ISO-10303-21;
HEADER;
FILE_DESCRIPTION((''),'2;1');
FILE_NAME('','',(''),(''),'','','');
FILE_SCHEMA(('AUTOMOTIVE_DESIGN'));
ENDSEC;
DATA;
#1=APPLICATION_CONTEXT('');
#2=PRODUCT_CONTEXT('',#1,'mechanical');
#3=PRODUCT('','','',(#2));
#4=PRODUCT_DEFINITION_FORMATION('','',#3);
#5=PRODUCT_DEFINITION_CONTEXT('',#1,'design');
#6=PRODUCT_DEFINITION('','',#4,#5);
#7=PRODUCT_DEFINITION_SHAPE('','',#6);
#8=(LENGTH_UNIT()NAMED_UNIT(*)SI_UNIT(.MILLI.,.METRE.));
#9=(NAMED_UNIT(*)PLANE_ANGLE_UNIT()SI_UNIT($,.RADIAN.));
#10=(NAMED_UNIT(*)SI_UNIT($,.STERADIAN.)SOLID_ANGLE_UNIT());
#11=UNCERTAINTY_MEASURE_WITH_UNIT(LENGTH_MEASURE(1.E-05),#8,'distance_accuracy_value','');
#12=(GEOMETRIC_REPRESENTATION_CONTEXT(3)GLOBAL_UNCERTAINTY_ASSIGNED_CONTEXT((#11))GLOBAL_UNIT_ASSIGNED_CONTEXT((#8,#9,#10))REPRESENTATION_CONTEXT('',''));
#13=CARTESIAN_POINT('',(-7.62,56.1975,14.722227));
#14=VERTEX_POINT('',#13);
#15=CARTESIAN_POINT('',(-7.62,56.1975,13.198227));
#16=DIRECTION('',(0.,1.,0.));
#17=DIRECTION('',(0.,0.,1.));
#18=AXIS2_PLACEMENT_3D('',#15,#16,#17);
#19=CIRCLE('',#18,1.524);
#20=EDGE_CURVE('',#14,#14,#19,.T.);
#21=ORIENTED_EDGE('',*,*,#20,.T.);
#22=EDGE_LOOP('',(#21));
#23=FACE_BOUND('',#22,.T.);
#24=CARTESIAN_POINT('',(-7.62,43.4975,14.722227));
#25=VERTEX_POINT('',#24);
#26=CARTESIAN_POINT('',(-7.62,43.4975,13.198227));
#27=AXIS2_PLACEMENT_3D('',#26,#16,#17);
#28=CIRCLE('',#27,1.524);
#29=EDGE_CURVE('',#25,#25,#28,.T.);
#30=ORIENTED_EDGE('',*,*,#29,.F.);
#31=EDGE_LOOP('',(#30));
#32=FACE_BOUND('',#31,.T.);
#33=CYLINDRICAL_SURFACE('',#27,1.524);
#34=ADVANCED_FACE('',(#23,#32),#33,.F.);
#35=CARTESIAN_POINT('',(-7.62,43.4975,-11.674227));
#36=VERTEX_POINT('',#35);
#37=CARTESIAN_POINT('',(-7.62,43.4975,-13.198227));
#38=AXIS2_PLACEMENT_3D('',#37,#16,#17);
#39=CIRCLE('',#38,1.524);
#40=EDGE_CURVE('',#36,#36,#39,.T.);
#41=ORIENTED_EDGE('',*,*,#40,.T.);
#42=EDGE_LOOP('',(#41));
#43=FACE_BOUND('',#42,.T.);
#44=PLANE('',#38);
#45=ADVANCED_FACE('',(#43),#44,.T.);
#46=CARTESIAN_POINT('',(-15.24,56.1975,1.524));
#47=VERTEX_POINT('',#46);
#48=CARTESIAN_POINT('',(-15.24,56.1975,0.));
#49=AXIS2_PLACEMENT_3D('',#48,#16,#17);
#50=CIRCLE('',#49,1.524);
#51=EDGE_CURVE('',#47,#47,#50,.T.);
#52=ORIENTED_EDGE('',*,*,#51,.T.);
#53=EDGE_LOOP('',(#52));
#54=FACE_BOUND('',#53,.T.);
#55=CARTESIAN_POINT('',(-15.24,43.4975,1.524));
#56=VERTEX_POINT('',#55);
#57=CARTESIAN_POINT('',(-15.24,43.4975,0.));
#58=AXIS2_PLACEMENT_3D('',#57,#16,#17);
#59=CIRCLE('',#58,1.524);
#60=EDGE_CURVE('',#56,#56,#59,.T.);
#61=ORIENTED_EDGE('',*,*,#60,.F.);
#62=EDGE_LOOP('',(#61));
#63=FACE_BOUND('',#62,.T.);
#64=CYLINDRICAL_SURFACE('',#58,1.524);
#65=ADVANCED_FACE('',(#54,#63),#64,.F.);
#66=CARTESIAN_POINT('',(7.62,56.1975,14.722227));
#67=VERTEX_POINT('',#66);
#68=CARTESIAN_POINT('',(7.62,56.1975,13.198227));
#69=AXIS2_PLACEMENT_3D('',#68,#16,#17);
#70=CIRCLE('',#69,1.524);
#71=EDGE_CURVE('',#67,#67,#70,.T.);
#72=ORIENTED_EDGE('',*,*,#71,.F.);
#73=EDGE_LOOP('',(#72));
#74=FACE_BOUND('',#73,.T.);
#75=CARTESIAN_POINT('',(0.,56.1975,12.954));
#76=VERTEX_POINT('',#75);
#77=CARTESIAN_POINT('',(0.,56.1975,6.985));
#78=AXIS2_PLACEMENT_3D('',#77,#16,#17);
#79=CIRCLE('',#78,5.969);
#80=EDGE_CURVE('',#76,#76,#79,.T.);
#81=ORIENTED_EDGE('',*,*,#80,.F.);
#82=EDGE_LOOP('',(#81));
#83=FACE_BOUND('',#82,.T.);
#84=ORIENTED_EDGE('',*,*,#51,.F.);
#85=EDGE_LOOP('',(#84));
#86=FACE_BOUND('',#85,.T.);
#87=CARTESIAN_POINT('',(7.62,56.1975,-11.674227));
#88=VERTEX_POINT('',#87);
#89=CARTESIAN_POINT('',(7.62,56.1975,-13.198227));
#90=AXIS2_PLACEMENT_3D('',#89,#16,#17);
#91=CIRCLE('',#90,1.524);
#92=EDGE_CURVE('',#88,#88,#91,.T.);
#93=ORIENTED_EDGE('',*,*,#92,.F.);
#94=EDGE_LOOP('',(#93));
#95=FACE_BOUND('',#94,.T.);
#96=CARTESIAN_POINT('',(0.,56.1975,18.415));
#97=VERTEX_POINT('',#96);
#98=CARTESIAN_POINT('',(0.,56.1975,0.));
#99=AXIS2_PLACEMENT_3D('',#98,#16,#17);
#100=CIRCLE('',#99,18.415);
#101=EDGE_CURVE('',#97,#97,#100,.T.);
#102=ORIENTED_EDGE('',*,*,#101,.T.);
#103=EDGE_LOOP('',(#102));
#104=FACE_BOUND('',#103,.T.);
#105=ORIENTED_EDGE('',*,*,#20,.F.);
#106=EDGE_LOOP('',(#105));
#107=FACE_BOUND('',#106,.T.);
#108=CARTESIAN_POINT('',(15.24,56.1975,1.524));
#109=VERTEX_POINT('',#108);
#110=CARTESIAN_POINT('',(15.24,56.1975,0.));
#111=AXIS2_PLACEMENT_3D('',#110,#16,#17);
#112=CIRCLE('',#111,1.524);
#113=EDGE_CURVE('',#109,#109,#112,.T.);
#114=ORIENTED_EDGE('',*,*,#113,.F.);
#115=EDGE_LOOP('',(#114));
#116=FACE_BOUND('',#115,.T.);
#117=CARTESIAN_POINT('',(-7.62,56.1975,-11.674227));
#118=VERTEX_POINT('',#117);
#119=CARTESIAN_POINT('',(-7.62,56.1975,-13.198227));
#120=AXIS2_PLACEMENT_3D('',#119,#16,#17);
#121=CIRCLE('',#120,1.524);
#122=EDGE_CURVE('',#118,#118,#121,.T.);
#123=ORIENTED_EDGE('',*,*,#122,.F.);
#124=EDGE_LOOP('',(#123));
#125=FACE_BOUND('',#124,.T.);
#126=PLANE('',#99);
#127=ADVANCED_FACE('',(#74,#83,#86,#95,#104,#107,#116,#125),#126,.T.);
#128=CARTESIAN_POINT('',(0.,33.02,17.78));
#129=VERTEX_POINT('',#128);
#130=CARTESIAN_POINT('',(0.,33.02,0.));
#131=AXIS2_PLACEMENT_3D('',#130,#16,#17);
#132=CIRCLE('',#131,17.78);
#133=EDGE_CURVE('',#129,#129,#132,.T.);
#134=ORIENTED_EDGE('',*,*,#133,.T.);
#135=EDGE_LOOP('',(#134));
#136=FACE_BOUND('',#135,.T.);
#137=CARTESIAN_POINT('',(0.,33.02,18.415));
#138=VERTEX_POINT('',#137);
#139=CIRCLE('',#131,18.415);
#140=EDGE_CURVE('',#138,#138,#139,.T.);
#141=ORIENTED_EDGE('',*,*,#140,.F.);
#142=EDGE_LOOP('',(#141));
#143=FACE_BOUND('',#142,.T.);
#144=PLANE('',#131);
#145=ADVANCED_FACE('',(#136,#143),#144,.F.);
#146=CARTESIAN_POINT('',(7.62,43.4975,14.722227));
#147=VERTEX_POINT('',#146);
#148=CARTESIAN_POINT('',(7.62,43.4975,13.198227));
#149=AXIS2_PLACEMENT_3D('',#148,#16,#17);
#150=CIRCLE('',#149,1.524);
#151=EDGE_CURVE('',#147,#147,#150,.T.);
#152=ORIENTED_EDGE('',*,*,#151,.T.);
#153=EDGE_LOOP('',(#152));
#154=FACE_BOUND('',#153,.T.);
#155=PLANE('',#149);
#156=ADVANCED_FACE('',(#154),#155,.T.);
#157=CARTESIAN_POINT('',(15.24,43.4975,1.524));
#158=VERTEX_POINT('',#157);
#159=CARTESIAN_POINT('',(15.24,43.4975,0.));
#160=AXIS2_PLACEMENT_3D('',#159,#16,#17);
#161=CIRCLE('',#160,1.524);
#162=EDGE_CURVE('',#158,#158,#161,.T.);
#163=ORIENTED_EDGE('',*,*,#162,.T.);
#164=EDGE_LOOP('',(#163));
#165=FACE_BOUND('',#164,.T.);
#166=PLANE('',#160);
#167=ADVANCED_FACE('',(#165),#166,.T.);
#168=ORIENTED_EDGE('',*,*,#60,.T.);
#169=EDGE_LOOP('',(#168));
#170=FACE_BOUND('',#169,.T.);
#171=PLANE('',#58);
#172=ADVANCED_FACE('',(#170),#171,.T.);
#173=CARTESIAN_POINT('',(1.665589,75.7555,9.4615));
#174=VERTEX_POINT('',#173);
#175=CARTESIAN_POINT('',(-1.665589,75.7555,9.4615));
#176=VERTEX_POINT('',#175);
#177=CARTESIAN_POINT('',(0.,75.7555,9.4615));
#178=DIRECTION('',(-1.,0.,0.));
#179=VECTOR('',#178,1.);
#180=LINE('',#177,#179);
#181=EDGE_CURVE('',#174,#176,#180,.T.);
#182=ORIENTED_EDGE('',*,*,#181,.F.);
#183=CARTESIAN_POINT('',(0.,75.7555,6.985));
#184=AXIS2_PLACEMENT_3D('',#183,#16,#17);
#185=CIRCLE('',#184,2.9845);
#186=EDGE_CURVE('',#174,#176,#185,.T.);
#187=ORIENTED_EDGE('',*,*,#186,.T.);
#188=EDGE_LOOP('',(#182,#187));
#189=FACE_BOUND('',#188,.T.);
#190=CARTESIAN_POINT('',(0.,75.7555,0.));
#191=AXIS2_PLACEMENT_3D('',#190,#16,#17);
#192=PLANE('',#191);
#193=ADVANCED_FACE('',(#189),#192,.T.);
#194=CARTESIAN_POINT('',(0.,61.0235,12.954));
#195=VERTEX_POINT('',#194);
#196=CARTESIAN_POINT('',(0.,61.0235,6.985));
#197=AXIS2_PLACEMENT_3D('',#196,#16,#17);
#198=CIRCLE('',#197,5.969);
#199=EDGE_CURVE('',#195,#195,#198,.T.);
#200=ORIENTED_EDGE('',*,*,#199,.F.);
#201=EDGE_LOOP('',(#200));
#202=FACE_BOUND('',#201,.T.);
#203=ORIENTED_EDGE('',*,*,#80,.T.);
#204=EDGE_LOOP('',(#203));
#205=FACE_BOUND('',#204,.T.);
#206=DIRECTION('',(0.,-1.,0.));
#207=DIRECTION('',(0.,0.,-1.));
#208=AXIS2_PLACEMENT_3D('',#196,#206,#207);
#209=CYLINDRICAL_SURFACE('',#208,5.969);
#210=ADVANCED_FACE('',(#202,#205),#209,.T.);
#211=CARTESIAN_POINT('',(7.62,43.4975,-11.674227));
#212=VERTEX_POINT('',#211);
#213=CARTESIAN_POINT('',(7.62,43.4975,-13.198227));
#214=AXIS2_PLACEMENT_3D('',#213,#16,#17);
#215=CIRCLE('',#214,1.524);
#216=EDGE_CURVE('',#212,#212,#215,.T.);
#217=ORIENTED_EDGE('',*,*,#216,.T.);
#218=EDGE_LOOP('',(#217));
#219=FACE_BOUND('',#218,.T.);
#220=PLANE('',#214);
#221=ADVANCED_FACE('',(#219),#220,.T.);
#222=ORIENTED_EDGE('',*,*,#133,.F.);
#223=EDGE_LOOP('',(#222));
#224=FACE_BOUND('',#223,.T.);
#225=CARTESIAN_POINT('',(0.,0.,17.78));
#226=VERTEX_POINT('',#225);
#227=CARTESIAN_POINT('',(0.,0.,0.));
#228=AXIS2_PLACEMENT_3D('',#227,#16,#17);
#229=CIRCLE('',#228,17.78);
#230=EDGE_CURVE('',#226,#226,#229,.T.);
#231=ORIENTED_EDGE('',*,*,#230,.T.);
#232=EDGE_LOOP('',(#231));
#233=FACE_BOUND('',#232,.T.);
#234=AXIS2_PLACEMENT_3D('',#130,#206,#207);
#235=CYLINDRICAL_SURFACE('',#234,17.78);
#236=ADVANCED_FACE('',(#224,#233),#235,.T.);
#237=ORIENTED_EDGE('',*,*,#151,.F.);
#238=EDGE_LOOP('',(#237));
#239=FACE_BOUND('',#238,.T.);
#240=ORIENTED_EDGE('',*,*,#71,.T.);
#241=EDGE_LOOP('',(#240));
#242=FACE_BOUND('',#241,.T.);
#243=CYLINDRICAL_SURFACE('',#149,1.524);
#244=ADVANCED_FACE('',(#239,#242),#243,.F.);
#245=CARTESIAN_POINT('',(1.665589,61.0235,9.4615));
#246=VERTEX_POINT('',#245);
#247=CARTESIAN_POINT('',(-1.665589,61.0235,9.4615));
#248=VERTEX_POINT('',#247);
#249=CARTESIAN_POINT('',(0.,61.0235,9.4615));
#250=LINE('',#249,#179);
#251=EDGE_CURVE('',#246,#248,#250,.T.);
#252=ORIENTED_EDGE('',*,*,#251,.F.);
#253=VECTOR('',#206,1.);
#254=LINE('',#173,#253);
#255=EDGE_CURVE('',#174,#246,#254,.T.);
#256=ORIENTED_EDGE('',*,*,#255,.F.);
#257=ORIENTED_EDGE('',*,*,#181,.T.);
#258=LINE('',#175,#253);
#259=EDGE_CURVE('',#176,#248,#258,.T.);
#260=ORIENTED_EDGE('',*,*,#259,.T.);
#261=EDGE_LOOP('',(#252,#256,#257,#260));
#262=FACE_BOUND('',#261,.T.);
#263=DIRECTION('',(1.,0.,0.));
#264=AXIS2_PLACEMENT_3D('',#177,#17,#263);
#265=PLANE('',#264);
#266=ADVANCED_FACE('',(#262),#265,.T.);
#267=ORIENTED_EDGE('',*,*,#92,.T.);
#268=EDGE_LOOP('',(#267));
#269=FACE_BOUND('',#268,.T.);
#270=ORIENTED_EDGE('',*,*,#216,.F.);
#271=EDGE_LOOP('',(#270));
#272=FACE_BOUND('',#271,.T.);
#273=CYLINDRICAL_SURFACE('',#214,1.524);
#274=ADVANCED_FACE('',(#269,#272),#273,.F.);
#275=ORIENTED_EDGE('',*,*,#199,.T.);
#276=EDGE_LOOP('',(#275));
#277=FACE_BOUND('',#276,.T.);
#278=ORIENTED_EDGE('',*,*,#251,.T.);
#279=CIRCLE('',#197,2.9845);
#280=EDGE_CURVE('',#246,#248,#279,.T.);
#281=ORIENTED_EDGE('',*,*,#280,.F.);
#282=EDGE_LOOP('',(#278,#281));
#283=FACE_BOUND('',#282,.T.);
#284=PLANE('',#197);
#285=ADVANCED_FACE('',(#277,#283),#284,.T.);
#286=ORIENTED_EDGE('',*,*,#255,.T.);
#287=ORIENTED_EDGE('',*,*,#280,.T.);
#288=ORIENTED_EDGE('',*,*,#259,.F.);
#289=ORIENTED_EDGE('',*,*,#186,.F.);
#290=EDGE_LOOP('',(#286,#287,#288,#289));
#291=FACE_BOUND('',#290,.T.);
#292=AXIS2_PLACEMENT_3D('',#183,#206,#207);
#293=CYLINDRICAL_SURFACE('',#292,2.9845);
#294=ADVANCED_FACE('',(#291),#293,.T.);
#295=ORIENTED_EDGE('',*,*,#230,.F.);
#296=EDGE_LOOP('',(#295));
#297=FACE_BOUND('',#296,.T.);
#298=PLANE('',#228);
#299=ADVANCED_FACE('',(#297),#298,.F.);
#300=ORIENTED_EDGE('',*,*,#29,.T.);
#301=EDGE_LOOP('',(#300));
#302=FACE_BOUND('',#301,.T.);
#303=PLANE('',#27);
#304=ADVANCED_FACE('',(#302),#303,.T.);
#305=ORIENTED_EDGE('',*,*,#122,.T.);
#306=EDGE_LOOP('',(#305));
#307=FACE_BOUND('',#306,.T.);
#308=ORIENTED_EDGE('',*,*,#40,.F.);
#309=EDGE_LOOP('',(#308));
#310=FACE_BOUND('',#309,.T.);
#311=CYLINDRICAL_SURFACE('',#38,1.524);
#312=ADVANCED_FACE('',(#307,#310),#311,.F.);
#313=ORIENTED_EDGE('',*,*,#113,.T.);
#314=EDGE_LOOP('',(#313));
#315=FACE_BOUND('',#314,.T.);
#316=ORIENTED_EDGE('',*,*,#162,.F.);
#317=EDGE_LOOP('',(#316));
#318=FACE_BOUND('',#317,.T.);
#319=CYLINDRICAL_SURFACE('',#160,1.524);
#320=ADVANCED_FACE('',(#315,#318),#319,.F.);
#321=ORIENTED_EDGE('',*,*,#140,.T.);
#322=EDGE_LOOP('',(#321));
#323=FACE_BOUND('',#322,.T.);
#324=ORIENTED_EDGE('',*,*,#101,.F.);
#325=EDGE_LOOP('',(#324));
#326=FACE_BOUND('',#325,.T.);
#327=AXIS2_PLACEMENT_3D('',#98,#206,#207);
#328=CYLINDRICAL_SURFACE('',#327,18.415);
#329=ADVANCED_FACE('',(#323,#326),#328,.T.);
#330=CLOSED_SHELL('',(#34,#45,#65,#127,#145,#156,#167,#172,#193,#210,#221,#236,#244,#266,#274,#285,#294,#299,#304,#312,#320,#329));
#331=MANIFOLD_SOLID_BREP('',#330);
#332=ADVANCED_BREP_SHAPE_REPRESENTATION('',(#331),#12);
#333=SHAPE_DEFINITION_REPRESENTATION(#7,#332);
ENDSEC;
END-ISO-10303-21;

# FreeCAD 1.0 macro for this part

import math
import FreeCAD as App
import Part
import Sketcher
Q = App.Units.Quantity

doc = App.newDocument("Part")
body = doc.addObject("PartDesign::Body", "Body")

sketch1 = body.newObject("Sketcher::SketchObject", "Sketch")
sketch1.AttachmentSupport = (doc.getObject("XZ_Plane"), [""])
sketch1.MapMode = "FlatFace"
sketch1.addGeometry(Part.Circle(App.Vector(0, 0, 0), App.Vector(0, 0, 1), 17.78), False)
sketch1.addConstraint(Sketcher.Constraint("Coincident", 0, 3, -1, 1))
sketch1.addConstraint(Sketcher.Constraint("Diameter", 0, Q("1.4 in")))
pad1 = body.newObject("PartDesign::Pad", "Pad")
pad1.Profile = sketch1
pad1.Length = Q("1.3 in")
pad1.Reversed = True

sketch2 = body.newObject("Sketcher::SketchObject", "Sketch001")
sketch2.AttachmentSupport = (doc.getObject("XZ_Plane"), [""])
sketch2.MapMode = "FlatFace"
sketch2.AttachmentOffset = App.Placement(App.Vector(0, 0, -1.3 * 25.4), App.Rotation())
sketch2.addGeometry(Part.Circle(App.Vector(0, 0, 0), App.Vector(0, 0, 1), 18.415), False)
sketch2.addConstraint(Sketcher.Constraint("Coincident", 0, 3, -1, 1))
sketch2.addConstraint(Sketcher.Constraint("Diameter", 0, Q("1.45 in")))
pad2 = body.newObject("PartDesign::Pad", "Pad001")
pad2.Profile = sketch2
pad2.Length = Q("0.9125 in")
pad2.Reversed = True

sketch3 = body.newObject("Sketcher::SketchObject", "Sketch002")
sketch3.AttachmentSupport = (doc.getObject("XZ_Plane"), [""])
sketch3.MapMode = "FlatFace"
sketch3.AttachmentOffset = App.Placement(App.Vector(0, 0, -2.2125 * 25.4), App.Rotation())
sketch3.addGeometry(Part.Circle(App.Vector(15.24, 0, 0), App.Vector(0, 0, 1), 1.524), False)
sketch3.addGeometry(Part.Circle(App.Vector(7.62, 13.198227, 0), App.Vector(0, 0, 1), 1.524), False)
sketch3.addGeometry(Part.Circle(App.Vector(-7.62, 13.198227, 0), App.Vector(0, 0, 1), 1.524), False)
sketch3.addGeometry(Part.Circle(App.Vector(-15.24, 0, 0), App.Vector(0, 0, 1), 1.524), False)
sketch3.addGeometry(Part.Circle(App.Vector(-7.62, -13.198227, 0), App.Vector(0, 0, 1), 1.524), False)
sketch3.addGeometry(Part.Circle(App.Vector(7.62, -13.198227, 0), App.Vector(0, 0, 1), 1.524), False)
sketch3.addConstraint(Sketcher.Constraint("Equal", 0, 1))
sketch3.addConstraint(Sketcher.Constraint("Equal", 1, 2))
sketch3.addConstraint(Sketcher.Constraint("Equal", 2, 3))
sketch3.addConstraint(Sketcher.Constraint("Equal", 3, 4))
sketch3.addConstraint(Sketcher.Constraint("Equal", 4, 5))
sketch3.addConstraint(Sketcher.Constraint("Symmetric", 0, 3, 3, 3, -1, 1))
sketch3.addConstraint(Sketcher.Constraint("Symmetric", 1, 3, 4, 3, -1, 1))
sketch3.addConstraint(Sketcher.Constraint("Symmetric", 2, 3, 5, 3, -1, 1))
sketch3.addConstraint(Sketcher.Constraint("Symmetric", 1, 3, 2, 3, -2))
sketch3.addConstraint(Sketcher.Constraint("PointOnObject", 0, 3, -1))
sketch3.addConstraint(Sketcher.Constraint("Diameter", 0, Q("0.12 in")))
sketch3.addConstraint(Sketcher.Constraint("DistanceX", -1, 1, 0, 3, Q("0.6 in")))
sketch3.addConstraint(Sketcher.Constraint("DistanceX", -1, 1, 1, 3, Q("0.3 in")))
sketch3.addConstraint(Sketcher.Constraint("DistanceY", -1, 1, 1, 3, Q("13.198227 mm")))
pocket1 = body.newObject("PartDesign::Pocket", "Pocket")
pocket1.Profile = sketch3
pocket1.Length = Q("0.5 in")
pocket1.Reversed = True

sketch4 = body.newObject("Sketcher::SketchObject", "Sketch003")
sketch4.AttachmentSupport = (doc.getObject("XZ_Plane"), [""])
sketch4.MapMode = "FlatFace"
sketch4.AttachmentOffset = App.Placement(App.Vector(0, 0, -2.2125 * 25.4), App.Rotation())
sketch4.addGeometry(Part.Circle(App.Vector(0, 6.985, 0), App.Vector(0, 0, 1), 5.969), False)
sketch4.addConstraint(Sketcher.Constraint("PointOnObject", 0, 3, -2))
sketch4.addConstraint(Sketcher.Constraint("Diameter", 0, Q("0.47 in")))
sketch4.addConstraint(Sketcher.Constraint("DistanceY", -1, 1, 0, 3, Q("0.275 in")))
pad3 = body.newObject("PartDesign::Pad", "Pad002")
pad3.Profile = sketch4
pad3.Length = Q("0.19 in")
pad3.Reversed = True

sketch5 = body.newObject("Sketcher::SketchObject", "Sketch004")
sketch5.AttachmentSupport = (doc.getObject("XZ_Plane"), [""])
sketch5.MapMode = "FlatFace"
sketch5.AttachmentOffset = App.Placement(App.Vector(0, 0, -2.4025 * 25.4), App.Rotation())
sketch5.addGeometry(Part.LineSegment(App.Vector(-1.665589, 9.4615, 0), App.Vector(1.665589, 9.4615, 0)), False)
sketch5.addGeometry(Part.ArcOfCircle(Part.Circle(App.Vector(0, 6.985, 0), App.Vector(0, 0, 1), 2.9845), math.radians(123.923112), math.radians(416.076888)), False)
sketch5.addConstraint(Sketcher.Constraint("Coincident", 0, 1, 1, 1))
sketch5.addConstraint(Sketcher.Constraint("Coincident", 1, 2, 0, 2))
sketch5.addConstraint(Sketcher.Constraint("Horizontal", 0))
sketch5.addConstraint(Sketcher.Constraint("PointOnObject", 1, 3, -2))
sketch5.addConstraint(Sketcher.Constraint("Radius", 1, Q("0.1175 in")))
sketch5.addConstraint(Sketcher.Constraint("DistanceY", -1, 1, 1, 3, Q("0.275 in")))
sketch5.addConstraint(Sketcher.Constraint("DistanceY", -1, 1, 0, 1, Q("0.3725 in")))
pad4 = body.newObject("PartDesign::Pad", "Pad003")
pad4.Profile = sketch5
pad4.Length = Q("0.58 in")
pad4.Reversed = True

doc.recompute()
